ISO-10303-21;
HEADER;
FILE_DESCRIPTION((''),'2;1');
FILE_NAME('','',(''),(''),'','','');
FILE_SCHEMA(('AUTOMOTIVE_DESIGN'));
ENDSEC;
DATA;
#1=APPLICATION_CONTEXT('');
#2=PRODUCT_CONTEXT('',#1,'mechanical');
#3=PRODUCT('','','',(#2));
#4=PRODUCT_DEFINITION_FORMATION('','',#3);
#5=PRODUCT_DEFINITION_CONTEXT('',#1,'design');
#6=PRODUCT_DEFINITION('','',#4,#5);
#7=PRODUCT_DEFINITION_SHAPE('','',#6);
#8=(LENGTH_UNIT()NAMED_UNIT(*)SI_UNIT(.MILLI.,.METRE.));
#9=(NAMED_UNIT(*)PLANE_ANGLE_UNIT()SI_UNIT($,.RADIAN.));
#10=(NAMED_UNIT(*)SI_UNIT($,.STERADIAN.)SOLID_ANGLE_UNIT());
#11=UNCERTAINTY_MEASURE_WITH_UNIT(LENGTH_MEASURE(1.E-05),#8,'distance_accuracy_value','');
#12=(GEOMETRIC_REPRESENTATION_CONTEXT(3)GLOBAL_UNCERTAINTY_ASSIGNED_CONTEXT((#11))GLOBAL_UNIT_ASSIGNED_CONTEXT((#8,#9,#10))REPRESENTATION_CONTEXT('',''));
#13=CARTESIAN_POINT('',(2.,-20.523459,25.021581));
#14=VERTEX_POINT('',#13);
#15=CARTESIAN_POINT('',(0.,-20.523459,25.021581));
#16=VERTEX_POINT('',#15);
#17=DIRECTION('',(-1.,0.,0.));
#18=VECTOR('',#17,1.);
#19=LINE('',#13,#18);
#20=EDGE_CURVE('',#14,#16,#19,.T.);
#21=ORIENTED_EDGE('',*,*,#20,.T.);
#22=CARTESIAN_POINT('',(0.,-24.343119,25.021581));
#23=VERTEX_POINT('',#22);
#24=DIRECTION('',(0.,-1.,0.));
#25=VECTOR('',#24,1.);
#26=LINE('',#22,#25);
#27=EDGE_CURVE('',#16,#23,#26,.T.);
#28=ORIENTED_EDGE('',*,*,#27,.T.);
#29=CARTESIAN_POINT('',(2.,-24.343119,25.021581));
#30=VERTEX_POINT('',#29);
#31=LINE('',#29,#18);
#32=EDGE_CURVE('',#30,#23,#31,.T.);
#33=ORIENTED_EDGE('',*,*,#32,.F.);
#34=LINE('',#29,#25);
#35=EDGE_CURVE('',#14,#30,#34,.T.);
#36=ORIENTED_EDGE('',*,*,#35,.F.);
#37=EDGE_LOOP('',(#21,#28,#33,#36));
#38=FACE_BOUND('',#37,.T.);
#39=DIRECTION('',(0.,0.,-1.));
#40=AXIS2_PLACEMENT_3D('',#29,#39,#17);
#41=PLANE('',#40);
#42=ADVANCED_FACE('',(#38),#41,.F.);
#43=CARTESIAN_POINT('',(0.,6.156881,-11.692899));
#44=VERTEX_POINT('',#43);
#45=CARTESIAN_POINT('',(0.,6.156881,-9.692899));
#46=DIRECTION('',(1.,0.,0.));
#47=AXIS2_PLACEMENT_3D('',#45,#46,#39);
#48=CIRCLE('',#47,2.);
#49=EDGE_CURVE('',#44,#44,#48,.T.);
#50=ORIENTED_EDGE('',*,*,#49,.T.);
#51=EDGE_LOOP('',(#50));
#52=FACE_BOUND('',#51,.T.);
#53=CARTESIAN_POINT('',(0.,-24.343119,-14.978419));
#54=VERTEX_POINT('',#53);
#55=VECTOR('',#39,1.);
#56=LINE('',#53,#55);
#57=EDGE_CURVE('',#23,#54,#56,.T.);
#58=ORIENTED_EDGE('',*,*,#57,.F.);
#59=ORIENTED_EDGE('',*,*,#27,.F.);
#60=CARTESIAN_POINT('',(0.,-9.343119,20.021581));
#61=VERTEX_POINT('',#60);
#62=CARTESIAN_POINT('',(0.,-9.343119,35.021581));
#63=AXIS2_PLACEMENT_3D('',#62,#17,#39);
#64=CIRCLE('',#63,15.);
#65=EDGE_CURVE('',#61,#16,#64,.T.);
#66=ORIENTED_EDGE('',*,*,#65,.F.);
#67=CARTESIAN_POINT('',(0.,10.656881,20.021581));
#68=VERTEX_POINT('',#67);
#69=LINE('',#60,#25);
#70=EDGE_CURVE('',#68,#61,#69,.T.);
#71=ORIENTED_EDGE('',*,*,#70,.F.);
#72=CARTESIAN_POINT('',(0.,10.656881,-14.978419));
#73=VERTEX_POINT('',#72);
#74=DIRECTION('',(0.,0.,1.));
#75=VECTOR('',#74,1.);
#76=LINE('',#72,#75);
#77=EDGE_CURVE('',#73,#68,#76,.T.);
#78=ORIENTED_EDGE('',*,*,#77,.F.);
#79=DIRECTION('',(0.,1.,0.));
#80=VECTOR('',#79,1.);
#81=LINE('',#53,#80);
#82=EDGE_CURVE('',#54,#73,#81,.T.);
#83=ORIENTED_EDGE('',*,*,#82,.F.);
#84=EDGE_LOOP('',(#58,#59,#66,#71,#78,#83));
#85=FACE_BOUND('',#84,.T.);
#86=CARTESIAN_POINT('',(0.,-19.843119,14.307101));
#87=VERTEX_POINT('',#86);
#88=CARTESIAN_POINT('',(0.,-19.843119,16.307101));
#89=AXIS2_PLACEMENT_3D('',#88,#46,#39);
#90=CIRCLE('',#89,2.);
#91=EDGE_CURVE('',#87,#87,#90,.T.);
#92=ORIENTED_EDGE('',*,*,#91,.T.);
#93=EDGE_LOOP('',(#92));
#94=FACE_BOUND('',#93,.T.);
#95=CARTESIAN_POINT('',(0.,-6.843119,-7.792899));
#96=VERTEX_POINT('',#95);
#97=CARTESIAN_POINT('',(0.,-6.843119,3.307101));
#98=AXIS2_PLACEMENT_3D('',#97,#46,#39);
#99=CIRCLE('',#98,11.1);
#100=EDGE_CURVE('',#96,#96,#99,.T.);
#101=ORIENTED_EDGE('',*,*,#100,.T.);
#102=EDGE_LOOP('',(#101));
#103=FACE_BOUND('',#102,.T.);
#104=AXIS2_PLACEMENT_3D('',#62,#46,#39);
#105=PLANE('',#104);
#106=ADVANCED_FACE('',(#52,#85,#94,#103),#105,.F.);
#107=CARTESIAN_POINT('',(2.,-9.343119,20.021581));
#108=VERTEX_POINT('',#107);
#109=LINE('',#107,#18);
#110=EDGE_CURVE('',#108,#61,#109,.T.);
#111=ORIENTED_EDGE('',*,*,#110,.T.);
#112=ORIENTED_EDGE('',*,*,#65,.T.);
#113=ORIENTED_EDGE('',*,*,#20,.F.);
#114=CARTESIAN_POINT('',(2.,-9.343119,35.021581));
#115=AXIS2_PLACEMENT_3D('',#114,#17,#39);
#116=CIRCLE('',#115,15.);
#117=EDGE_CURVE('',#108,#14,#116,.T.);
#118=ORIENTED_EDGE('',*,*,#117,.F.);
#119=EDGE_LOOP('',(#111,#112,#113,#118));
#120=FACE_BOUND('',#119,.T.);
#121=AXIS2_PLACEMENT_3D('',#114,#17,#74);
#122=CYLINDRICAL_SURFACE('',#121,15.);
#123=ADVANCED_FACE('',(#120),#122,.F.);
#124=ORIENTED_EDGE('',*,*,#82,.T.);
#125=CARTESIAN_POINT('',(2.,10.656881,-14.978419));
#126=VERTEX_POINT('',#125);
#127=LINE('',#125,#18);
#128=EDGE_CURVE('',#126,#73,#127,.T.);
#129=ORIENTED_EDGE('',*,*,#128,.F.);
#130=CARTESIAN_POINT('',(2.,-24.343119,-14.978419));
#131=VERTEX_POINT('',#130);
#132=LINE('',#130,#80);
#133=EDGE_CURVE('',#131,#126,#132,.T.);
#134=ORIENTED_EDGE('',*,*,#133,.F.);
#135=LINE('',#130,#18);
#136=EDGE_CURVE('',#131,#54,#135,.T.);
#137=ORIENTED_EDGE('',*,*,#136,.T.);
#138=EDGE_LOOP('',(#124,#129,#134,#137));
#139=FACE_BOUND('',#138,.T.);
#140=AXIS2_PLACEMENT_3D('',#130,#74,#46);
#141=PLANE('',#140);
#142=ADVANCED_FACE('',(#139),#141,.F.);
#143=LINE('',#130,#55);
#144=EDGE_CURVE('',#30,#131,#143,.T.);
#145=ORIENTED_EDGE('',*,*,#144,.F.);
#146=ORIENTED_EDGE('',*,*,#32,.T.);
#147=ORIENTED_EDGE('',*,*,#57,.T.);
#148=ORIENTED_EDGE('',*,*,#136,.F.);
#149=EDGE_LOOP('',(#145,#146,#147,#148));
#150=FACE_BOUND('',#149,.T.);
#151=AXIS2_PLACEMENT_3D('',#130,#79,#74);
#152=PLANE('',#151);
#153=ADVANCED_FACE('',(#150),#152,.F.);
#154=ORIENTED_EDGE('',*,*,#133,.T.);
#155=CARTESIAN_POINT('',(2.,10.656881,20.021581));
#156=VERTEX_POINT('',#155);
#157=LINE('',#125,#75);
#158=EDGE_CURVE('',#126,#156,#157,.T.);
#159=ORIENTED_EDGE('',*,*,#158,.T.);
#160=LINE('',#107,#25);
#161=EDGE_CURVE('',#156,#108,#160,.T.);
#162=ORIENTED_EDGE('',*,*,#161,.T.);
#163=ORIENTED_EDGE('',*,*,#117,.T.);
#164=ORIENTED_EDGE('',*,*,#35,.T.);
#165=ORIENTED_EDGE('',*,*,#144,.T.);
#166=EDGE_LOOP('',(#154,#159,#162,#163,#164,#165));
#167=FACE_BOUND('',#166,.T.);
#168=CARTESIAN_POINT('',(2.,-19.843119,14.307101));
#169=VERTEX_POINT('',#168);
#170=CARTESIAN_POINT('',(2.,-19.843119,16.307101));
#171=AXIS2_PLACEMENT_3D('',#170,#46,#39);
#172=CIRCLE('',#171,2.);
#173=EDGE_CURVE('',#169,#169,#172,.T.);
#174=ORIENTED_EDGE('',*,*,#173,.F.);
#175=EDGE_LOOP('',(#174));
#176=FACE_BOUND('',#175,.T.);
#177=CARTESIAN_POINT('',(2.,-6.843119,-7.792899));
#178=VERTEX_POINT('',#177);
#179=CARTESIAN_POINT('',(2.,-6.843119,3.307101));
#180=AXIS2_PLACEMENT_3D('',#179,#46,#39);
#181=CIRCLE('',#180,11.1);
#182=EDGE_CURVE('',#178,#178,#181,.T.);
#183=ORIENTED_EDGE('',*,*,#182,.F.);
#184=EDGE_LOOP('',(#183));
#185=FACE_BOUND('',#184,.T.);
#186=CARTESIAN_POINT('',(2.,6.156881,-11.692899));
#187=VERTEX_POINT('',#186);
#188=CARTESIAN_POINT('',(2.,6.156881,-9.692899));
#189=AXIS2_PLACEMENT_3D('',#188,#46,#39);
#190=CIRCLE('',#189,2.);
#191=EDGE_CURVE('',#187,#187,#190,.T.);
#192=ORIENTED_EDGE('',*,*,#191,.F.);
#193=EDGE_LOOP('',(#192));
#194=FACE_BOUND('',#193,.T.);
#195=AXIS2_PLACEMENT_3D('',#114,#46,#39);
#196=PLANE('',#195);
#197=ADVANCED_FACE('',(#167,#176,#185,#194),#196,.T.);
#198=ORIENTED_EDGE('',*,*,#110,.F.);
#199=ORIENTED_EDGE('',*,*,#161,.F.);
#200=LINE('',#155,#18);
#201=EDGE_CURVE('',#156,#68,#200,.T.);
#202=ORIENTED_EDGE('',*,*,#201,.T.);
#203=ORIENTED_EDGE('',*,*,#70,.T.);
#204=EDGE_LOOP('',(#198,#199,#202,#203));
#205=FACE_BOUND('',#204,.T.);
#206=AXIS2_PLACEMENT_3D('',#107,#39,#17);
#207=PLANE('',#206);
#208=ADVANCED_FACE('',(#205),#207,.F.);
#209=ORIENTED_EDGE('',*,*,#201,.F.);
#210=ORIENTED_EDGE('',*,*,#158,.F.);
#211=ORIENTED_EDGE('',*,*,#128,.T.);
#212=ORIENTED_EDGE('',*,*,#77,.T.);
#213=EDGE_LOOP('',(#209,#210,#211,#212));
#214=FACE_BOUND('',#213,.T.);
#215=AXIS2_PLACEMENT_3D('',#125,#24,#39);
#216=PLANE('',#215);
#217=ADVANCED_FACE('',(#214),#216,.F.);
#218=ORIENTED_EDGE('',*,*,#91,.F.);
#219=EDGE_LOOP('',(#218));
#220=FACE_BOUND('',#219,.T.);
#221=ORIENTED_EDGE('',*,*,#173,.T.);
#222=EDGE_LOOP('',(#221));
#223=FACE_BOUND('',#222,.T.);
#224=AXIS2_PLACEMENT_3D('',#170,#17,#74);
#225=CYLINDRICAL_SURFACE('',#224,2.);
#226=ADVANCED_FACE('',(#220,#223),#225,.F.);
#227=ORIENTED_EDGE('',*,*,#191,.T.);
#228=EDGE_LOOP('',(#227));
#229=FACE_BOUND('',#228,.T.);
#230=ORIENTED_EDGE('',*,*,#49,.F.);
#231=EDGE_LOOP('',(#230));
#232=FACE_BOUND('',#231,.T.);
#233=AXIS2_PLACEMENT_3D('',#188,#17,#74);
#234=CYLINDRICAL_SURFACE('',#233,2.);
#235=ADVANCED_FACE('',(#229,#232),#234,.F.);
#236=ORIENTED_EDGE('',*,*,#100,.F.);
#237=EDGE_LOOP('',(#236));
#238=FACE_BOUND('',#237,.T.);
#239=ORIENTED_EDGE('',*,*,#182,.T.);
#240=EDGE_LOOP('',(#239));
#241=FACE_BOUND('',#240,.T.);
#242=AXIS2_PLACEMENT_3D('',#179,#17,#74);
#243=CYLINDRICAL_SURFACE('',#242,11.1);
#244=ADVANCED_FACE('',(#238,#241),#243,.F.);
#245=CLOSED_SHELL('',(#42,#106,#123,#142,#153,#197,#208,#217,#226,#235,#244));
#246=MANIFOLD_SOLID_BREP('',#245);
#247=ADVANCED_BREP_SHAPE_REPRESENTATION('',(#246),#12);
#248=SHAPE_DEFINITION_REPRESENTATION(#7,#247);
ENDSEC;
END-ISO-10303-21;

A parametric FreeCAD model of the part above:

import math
import FreeCAD as App
import Part
import Sketcher

V = App.Vector

doc = App.newDocument("Part")
body = doc.addObject("PartDesign::Body", "Body")

sketch1 = doc.addObject("Sketcher::SketchObject", "Sketch")
body.addObject(sketch1)
sketch1.AttachmentSupport = (doc.YZ_Plane, [""])
sketch1.MapMode = "FlatFace"
sketch1.addGeometry(Part.LineSegment(V(-24.343119, -14.978419, 0), V(10.656881, -14.978419, 0)), False)
sketch1.addGeometry(Part.LineSegment(V(10.656881, -14.978419, 0), V(10.656881, 20.021581, 0)), False)
sketch1.addGeometry(Part.LineSegment(V(10.656881, 20.021581, 0), V(-9.343119, 20.021581, 0)), False)
sketch1.addGeometry(Part.ArcOfCircle(Part.Circle(V(-9.343119, 35.021581, 0), V(0, 0, 1), 15), math.radians(-138.189685), math.radians(-90)), False)
sketch1.addGeometry(Part.LineSegment(V(-20.523459, 25.021581, 0), V(-24.343119, 25.021581, 0)), False)
sketch1.addGeometry(Part.LineSegment(V(-24.343119, 25.021581, 0), V(-24.343119, -14.978419, 0)), False)
sketch1.addGeometry(Part.Circle(V(-19.843119, 16.307101, 0), V(0, 0, 1), 2), False)
sketch1.addGeometry(Part.Circle(V(-6.843119, 3.307101, 0), V(0, 0, 1), 11.1), False)
sketch1.addGeometry(Part.Circle(V(6.156881, -9.692899, 0), V(0, 0, 1), 2), False)
sketch1.addConstraint(Sketcher.Constraint("Coincident", 0, 2, 1, 1))
sketch1.addConstraint(Sketcher.Constraint("Coincident", 1, 2, 2, 1))
sketch1.addConstraint(Sketcher.Constraint("Tangent", 2, 2, 3, 2))
sketch1.addConstraint(Sketcher.Constraint("Coincident", 3, 1, 4, 1))
sketch1.addConstraint(Sketcher.Constraint("Coincident", 4, 2, 5, 1))
sketch1.addConstraint(Sketcher.Constraint("Coincident", 5, 2, 0, 1))
sketch1.addConstraint(Sketcher.Constraint("Horizontal", 0))
sketch1.addConstraint(Sketcher.Constraint("Vertical", 1))
sketch1.addConstraint(Sketcher.Constraint("Horizontal", 2))
sketch1.addConstraint(Sketcher.Constraint("Horizontal", 4))
sketch1.addConstraint(Sketcher.Constraint("Vertical", 5))
sketch1.addConstraint(Sketcher.Constraint("Equal", 6, 8))
sketch1.addConstraint(Sketcher.Constraint("Equal", 0, 1))
sketch1.addConstraint(Sketcher.Constraint("Diameter", 6, 4.0))
sketch1.addConstraint(Sketcher.Constraint("Radius", 3, 15.0))
sketch1.addConstraint(Sketcher.Constraint("Diameter", 7, 22.2))
sketch1.addConstraint(Sketcher.Constraint("DistanceX", 0, 1, 0, 2, 35.0))
sketch1.addConstraint(Sketcher.Constraint("DistanceX", 2, 2, 2, 1, 20.0))
sketch1.addConstraint(Sketcher.Constraint("DistanceY", 5, 2, 5, 1, 40.0))
sketch1.addConstraint(Sketcher.Constraint("DistanceX", 6, 3, 7, 3, 13.0))
sketch1.addConstraint(Sketcher.Constraint("DistanceY", 7, 3, 6, 3, 13.0))
sketch1.addConstraint(Sketcher.Constraint("DistanceX", 7, 3, 8, 3, 13.0))
sketch1.addConstraint(Sketcher.Constraint("DistanceY", 8, 3, 7, 3, 13.0))
sketch1.addConstraint(Sketcher.Constraint("DistanceX", 6, 3, 3, 3, 10.5))
sketch1.addConstraint(Sketcher.Constraint("DistanceY", -1, 1, 6, 3, 16.307101))
sketch1.addConstraint(Sketcher.Constraint("DistanceX", 3, 3, -1, 1, 9.343119))
sketch1.addConstraint(Sketcher.Constraint("DistanceY", -1, 1, 3, 3, 35.021581))
pad1 = doc.addObject("PartDesign::Pad", "Pad")
body.addObject(pad1)
pad1.Profile = sketch1
pad1.Length = 2

doc.recompute()
